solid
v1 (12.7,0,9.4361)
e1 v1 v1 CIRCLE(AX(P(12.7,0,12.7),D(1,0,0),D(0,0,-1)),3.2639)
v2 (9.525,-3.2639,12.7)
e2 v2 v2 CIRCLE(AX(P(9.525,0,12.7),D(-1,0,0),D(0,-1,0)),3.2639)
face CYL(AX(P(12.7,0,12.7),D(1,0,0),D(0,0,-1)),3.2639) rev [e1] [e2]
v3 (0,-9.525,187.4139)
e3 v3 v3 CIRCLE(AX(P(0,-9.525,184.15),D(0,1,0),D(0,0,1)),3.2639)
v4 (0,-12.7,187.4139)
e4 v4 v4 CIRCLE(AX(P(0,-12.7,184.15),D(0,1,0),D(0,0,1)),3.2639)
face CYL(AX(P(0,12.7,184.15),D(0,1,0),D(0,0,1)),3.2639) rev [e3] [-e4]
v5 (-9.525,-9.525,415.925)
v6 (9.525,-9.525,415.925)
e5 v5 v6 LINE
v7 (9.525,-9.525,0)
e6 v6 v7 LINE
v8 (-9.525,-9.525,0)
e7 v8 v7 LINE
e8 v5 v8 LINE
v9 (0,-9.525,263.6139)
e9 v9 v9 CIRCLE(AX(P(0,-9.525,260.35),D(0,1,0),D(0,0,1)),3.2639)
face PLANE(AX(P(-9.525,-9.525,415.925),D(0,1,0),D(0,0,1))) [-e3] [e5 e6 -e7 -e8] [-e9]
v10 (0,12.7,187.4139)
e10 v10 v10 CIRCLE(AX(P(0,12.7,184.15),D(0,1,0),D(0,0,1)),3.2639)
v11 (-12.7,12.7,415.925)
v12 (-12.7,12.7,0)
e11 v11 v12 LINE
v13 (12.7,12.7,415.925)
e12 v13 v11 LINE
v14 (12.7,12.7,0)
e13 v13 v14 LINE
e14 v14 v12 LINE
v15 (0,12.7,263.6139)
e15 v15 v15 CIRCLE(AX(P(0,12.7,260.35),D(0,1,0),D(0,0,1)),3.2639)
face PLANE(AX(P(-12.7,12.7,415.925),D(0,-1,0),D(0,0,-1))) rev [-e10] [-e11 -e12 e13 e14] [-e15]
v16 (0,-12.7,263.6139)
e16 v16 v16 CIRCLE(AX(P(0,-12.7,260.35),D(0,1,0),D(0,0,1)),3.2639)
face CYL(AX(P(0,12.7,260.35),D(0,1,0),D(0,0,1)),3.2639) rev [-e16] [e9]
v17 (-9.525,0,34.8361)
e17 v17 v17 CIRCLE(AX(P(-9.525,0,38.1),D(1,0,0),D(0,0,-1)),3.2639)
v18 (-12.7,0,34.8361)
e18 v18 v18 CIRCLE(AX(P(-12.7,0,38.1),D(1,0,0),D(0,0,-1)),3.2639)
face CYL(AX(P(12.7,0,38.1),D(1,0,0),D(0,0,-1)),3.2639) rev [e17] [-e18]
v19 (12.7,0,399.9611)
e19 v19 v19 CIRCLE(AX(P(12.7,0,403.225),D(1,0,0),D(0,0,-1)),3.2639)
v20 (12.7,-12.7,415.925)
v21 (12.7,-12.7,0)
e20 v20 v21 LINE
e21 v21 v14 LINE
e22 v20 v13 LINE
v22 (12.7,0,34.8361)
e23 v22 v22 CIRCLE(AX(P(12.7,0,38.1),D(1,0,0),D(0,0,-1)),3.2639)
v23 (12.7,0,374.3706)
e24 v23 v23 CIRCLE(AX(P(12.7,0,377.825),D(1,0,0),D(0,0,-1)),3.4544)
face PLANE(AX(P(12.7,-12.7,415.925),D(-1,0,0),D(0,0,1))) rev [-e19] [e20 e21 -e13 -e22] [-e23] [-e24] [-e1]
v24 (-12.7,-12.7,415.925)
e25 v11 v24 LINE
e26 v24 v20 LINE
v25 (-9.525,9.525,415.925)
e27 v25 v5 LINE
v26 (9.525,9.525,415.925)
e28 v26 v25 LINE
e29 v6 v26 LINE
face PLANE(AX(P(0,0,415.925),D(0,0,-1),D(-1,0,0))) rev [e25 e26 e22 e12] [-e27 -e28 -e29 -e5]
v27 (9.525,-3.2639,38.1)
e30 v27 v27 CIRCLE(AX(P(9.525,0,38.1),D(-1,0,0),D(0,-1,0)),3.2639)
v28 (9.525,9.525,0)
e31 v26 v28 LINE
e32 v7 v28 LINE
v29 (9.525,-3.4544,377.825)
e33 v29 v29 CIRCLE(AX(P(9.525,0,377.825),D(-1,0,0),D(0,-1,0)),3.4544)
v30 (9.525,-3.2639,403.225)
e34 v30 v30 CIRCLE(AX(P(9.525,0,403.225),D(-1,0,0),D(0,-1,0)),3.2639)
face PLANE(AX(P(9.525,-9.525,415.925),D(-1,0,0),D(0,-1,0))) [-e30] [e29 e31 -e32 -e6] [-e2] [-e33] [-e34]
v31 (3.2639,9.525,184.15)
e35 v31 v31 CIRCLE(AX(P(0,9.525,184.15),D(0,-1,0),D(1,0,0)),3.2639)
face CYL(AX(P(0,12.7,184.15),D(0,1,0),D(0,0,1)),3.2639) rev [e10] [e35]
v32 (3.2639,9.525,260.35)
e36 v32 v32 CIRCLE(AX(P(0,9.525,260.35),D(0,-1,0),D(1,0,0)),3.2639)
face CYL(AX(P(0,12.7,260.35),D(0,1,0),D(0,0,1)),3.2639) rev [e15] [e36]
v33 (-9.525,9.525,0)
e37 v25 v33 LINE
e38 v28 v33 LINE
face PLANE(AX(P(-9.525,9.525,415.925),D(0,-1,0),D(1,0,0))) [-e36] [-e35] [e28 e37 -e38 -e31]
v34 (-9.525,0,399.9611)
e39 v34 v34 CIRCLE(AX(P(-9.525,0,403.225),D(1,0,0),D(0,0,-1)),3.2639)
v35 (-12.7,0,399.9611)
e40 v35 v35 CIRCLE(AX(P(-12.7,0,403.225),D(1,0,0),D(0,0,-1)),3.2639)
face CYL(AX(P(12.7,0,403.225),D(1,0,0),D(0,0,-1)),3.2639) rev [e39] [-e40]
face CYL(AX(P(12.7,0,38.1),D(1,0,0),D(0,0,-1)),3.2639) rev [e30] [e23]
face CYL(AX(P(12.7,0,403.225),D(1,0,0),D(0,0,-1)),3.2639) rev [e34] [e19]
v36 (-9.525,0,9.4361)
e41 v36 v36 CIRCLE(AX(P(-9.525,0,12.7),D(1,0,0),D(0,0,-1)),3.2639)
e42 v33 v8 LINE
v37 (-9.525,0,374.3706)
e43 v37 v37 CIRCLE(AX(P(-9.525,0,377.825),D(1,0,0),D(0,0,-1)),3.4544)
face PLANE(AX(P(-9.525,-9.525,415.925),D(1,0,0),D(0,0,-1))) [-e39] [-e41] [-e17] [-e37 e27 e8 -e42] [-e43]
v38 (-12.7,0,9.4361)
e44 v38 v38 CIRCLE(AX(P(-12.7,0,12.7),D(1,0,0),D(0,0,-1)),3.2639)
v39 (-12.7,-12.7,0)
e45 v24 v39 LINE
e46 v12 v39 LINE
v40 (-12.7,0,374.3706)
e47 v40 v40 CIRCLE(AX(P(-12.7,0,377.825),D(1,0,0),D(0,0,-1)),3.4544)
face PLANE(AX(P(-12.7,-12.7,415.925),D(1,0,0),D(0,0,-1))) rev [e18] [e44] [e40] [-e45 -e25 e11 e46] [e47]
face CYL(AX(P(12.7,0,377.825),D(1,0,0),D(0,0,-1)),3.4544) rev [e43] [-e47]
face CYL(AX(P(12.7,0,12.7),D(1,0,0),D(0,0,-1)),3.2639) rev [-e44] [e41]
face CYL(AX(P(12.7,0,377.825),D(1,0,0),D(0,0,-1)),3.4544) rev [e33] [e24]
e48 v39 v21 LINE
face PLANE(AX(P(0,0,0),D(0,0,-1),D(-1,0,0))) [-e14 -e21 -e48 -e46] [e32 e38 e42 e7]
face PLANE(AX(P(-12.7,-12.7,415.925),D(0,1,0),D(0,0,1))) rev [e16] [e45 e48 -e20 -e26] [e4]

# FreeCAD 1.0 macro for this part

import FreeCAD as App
import Part
import Sketcher
Q = App.Units.Quantity


def add_polygon(sketch, points):
    """Adds a closed chain of lines whose ends are joined by coincident constraints."""
    first, n = sketch.GeometryCount, len(points)
    for a, b in zip(points, points[1:] + points[:1]):
        sketch.addGeometry(Part.LineSegment(App.Vector(*a, 0), App.Vector(*b, 0)), False)
    for i in range(n):
        sketch.addConstraint(Sketcher.Constraint("Coincident", first + i, 2, first + (i + 1) % n, 1))

doc = App.newDocument("Part")
body = doc.addObject("PartDesign::Body", "Body")

# Sketch on XY plane
sketch1 = body.newObject("Sketcher::SketchObject", "Sketch")
sketch1.AttachmentSupport = (doc.getObject("XY_Plane"), [""])
sketch1.MapMode = "FlatFace"
add_polygon(sketch1, [(-12.7, 12.7), (-12.7, -12.7), (12.7, -12.7), (12.7, 12.7)])  # lines 0-3
add_polygon(sketch1, [(9.525, -9.525), (-9.525, -9.525), (-9.525, 9.525), (9.525, 9.525)])  # lines 4-7
sketch1.addConstraint([
    Sketcher.Constraint("Vertical", 0),
    Sketcher.Constraint("Horizontal", 1),
    Sketcher.Constraint("Vertical", 2),
    Sketcher.Constraint("Horizontal", 3),
    Sketcher.Constraint("Horizontal", 4),
    Sketcher.Constraint("Vertical", 5),
    Sketcher.Constraint("Horizontal", 6),
    Sketcher.Constraint("Vertical", 7),
    Sketcher.Constraint("Symmetric", 0, 2, 2, 2, -1, 1),
    Sketcher.Constraint("Symmetric", 4, 2, 6, 2, -1, 1),
    Sketcher.Constraint("Equal", 3, 0),
    Sketcher.Constraint("Equal", 6, 5),
    Sketcher.Constraint("DistanceX", 1, 1, 1, 2, Q("1 in")),
    Sketcher.Constraint("DistanceX", 4, 2, 4, 1, Q("0.75 in")),
])
pad1 = body.newObject("PartDesign::Pad", "Pad")
pad1.Profile = sketch1
pad1.Length = Q("16.375 in")

# Sketch on YZ plane
sketch2 = body.newObject("Sketcher::SketchObject", "Sketch001")
sketch2.AttachmentSupport = (doc.getObject("YZ_Plane"), [""])
sketch2.MapMode = "FlatFace"
sketch2.AttachmentOffset = App.Placement(App.Vector(0, 0, 0.5 * 25.4), App.Rotation())
sketch2.addGeometry([
    Part.Circle(App.Vector(0, 403.225, 0), App.Vector(0, 0, 1), 3.2639),
    Part.Circle(App.Vector(0, 12.7, 0), App.Vector(0, 0, 1), 3.2639),
    Part.Circle(App.Vector(0, 38.1, 0), App.Vector(0, 0, 1), 3.2639),
], False)
sketch2.addConstraint([
    Sketcher.Constraint("Equal", 0, 1),
    Sketcher.Constraint("Equal", 1, 2),
    Sketcher.Constraint("PointOnObject", 0, 3, -2),
    Sketcher.Constraint("PointOnObject", 1, 3, -2),
    Sketcher.Constraint("PointOnObject", 2, 3, -2),
    Sketcher.Constraint("Diameter", 0, Q("0.257 in")),
    Sketcher.Constraint("DistanceY", 1, 3, 2, 3, Q("1 in")),
    Sketcher.Constraint("DistanceY", -1, 1, 1, 3, Q("0.5 in")),
    Sketcher.Constraint("DistanceY", -1, 1, 0, 3, Q("15.875 in")),
])
doc.recompute()
hole = body.newObject("PartDesign::Hole", "Hole")
hole.Profile = sketch2
hole.ThreadType = "None"
hole.Diameter = Q("0.257 in")
hole.DepthType = "ThroughAll"

# Sketch on YZ plane
sketch3 = body.newObject("Sketcher::SketchObject", "Sketch002")
sketch3.AttachmentSupport = (doc.getObject("YZ_Plane"), [""])
sketch3.MapMode = "FlatFace"
sketch3.AttachmentOffset = App.Placement(App.Vector(0, 0, 0.5 * 25.4), App.Rotation())
sketch3.addGeometry(Part.Circle(App.Vector(0, 377.825, 0), App.Vector(0, 0, 1), 3.4544), False)
sketch3.addConstraint([
    Sketcher.Constraint("PointOnObject", 0, 3, -2),
    Sketcher.Constraint("Diameter", 0, Q("0.272 in")),
    Sketcher.Constraint("DistanceY", -1, 1, 0, 3, Q("14.875 in")),
])
doc.recompute()
hole2 = body.newObject("PartDesign::Hole", "Hole001")
hole2.Profile = sketch3
hole2.ThreadType = "None"
hole2.Diameter = Q("0.272 in")
hole2.DepthType = "ThroughAll"

# Sketch on XZ plane
sketch4 = body.newObject("Sketcher::SketchObject", "Sketch003")
sketch4.AttachmentSupport = (doc.getObject("XZ_Plane"), [""])
sketch4.MapMode = "FlatFace"
sketch4.AttachmentOffset = App.Placement(App.Vector(0, 0, -0.5 * 25.4), App.Rotation())
sketch4.addGeometry([
    Part.Circle(App.Vector(0, 184.15, 0), App.Vector(0, 0, 1), 3.2639),
    Part.Circle(App.Vector(0, 260.35, 0), App.Vector(0, 0, 1), 3.2639),
], False)
sketch4.addConstraint([
    Sketcher.Constraint("Equal", 0, 1),
    Sketcher.Constraint("PointOnObject", 0, 3, -2),
    Sketcher.Constraint("PointOnObject", 1, 3, -2),
    Sketcher.Constraint("Diameter", 0, Q("0.257 in")),
    Sketcher.Constraint("DistanceY", 0, 3, 1, 3, Q("3 in")),
    Sketcher.Constraint("DistanceY", -1, 1, 0, 3, Q("7.25 in")),
])
doc.recompute()
hole3 = body.newObject("PartDesign::Hole", "Hole002")
hole3.Profile = sketch4
hole3.ThreadType = "None"
hole3.Diameter = Q("0.257 in")
hole3.DepthType = "ThroughAll"
hole3.Reversed = True

doc.recompute()
